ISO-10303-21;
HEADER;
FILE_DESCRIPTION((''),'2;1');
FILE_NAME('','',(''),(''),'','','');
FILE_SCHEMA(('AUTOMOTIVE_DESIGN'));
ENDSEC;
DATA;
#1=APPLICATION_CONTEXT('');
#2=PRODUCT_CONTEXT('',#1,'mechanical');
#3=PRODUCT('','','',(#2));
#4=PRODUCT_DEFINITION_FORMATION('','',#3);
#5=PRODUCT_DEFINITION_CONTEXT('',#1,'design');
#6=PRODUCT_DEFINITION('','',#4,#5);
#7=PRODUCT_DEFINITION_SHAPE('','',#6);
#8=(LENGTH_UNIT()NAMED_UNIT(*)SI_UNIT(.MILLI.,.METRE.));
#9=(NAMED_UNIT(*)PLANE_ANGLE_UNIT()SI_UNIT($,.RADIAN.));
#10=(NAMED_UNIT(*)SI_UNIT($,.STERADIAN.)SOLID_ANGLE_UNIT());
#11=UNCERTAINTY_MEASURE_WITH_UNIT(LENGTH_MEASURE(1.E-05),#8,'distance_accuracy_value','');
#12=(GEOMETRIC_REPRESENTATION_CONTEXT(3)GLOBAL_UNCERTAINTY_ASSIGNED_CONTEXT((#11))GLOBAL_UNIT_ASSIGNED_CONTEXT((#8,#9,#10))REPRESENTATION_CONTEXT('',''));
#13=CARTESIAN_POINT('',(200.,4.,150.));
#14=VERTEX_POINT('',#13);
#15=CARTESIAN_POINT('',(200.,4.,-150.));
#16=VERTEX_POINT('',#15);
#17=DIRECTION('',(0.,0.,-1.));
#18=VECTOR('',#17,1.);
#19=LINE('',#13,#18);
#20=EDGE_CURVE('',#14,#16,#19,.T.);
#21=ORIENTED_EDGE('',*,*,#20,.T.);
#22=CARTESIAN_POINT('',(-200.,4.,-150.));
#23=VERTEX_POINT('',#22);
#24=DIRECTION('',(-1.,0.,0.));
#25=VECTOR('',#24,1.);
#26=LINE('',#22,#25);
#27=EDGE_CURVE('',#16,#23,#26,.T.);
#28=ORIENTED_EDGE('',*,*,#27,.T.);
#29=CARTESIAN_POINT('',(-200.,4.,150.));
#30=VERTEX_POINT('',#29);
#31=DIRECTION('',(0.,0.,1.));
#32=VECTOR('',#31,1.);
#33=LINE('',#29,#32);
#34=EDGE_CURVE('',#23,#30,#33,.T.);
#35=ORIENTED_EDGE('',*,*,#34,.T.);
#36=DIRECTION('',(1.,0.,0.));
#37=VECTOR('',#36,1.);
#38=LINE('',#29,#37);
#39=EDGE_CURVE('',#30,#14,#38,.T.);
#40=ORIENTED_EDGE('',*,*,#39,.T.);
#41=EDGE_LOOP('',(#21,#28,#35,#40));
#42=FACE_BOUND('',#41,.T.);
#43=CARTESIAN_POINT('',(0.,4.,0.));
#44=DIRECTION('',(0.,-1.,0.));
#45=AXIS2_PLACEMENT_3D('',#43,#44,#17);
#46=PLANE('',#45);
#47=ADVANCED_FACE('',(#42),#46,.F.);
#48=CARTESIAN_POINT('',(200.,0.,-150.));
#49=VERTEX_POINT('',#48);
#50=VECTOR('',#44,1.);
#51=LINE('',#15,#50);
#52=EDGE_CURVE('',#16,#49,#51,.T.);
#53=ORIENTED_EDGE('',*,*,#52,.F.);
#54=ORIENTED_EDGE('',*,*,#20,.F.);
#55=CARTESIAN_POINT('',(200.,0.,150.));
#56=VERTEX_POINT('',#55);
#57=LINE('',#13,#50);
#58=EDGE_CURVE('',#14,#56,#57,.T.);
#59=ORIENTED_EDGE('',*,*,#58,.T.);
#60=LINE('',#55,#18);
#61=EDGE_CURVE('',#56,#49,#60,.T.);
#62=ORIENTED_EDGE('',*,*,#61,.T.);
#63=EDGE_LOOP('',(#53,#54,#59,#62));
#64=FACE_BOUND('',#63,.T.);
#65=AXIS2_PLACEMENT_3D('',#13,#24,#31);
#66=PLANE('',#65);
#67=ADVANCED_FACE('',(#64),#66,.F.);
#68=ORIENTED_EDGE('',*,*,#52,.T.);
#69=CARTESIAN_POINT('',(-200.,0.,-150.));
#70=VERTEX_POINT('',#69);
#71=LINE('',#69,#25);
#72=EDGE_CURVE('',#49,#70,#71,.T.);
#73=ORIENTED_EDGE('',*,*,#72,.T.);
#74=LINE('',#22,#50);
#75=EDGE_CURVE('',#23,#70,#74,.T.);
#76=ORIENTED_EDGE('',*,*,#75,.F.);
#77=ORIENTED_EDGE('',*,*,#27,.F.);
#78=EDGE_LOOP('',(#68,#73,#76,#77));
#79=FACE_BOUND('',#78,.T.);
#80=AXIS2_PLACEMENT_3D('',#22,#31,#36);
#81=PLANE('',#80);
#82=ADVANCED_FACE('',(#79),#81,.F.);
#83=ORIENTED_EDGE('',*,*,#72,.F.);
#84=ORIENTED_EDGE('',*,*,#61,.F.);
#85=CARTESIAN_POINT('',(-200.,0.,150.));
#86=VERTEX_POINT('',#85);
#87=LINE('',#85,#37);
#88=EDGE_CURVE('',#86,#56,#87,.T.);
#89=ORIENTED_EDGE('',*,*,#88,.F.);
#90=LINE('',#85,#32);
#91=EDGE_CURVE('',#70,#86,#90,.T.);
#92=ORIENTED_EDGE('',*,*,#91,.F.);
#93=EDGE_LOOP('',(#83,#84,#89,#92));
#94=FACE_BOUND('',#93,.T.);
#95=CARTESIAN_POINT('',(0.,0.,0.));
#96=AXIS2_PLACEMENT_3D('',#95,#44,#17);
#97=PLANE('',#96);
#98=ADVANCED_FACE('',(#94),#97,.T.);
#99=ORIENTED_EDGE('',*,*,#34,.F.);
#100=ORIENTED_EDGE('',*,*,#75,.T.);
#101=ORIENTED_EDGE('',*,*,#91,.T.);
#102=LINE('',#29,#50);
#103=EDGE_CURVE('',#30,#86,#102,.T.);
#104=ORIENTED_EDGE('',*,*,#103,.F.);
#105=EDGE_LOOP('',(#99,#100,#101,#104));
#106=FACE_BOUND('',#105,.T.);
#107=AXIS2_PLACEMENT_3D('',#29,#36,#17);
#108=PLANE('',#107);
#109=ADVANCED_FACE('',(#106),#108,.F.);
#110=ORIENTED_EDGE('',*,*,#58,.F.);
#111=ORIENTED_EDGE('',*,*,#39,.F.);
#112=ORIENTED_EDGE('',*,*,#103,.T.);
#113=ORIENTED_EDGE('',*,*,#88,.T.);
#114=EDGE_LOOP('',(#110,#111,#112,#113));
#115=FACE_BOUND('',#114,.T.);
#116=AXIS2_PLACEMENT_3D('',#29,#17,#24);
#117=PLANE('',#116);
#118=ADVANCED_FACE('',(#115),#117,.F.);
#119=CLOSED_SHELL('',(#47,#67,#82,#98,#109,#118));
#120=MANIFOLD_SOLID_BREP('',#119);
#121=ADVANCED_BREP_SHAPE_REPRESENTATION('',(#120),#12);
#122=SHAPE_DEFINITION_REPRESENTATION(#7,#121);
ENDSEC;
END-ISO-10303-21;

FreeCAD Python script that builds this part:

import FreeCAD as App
import Part
import Sketcher
Q = App.Units.Quantity

doc = App.newDocument("Part")
body = doc.addObject("PartDesign::Body", "Body")

sketch1 = body.newObject("Sketcher::SketchObject", "Sketch")
sketch1.AttachmentSupport = (doc.getObject("XZ_Plane"), [""])
sketch1.MapMode = "FlatFace"
sketch1.addGeometry([
    Part.LineSegment(App.Vector(-200, -150, 0), App.Vector(-200, 150, 0)),
    Part.LineSegment(App.Vector(-200, 150, 0), App.Vector(200, 150, 0)),
    Part.LineSegment(App.Vector(200, 150, 0), App.Vector(200, -150, 0)),
    Part.LineSegment(App.Vector(200, -150, 0), App.Vector(-200, -150, 0)),
], False)
sketch1.addConstraint([
    Sketcher.Constraint("Coincident", 0, 2, 1, 1),
    Sketcher.Constraint("Coincident", 1, 2, 2, 1),
    Sketcher.Constraint("Coincident", 2, 2, 3, 1),
    Sketcher.Constraint("Coincident", 3, 2, 0, 1),
    Sketcher.Constraint("Vertical", 0),
    Sketcher.Constraint("Horizontal", 1),
    Sketcher.Constraint("Vertical", 2),
    Sketcher.Constraint("Horizontal", 3),
    Sketcher.Constraint("Symmetric", 0, 2, 2, 2, -1, 1),
    Sketcher.Constraint("DistanceX", 1, 1, 1, 2, Q("400 mm")),
    Sketcher.Constraint("DistanceY", 0, 1, 0, 2, Q("300 mm")),
])
pad1 = body.newObject("PartDesign::Pad", "Pad")
pad1.Profile = sketch1
pad1.Length = 4
pad1.Reversed = True

doc.recompute()
